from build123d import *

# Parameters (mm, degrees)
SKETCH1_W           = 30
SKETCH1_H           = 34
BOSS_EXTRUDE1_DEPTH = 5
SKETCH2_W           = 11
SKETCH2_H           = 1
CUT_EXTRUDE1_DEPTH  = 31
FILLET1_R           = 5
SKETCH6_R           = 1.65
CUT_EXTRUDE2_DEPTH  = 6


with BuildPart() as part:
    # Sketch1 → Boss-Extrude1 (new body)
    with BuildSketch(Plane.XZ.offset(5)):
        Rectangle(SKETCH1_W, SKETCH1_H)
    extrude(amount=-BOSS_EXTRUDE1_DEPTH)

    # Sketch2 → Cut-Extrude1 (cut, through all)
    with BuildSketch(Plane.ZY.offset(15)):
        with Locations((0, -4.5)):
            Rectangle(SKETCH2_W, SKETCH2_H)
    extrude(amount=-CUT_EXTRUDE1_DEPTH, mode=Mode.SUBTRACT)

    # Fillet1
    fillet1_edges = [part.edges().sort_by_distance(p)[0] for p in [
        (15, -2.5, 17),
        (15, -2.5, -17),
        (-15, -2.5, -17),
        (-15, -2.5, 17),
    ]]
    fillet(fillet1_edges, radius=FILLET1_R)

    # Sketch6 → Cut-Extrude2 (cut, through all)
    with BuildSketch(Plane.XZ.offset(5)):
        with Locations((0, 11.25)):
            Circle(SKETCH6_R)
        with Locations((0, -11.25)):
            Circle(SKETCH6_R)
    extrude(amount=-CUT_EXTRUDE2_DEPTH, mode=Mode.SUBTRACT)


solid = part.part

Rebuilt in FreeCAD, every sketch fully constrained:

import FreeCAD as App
import Part
import Sketcher

V = App.Vector


def edges_at(feature, points):
    """Names of the edges that pass closest to the given points."""
    edges = feature.Shape.Edges
    near = lambda p: min(range(len(edges)), key=lambda i: edges[i].distToShape(Part.Vertex(*p))[0])
    return sorted({f"Edge{near(p) + 1}" for p in points})

doc = App.newDocument("Part")
params = doc.addObject("Spreadsheet::Sheet", "Params")
for row, (alias, value) in enumerate([
    ("sketch1_width", "30 mm"),
    ("sketch1_height", "34 mm"),
    ("pad1_length", "5 mm"),
    ("sketch2_width", "1 mm"),
    ("sketch2_height", "11 mm"),
    ("fillet_radius", "5 mm"),
    ("sketch3_diameter", "3.3 mm"),
], start=1):
    params.set(f"A{row}", alias)
    params.set(f"B{row}", "=" + value)
    params.setAlias(f"B{row}", alias)

body = doc.addObject("PartDesign::Body", "Body")

sketch1 = body.newObject("Sketcher::SketchObject", "Sketch")
sketch1.AttachmentSupport = (doc.getObject("XZ_Plane"), [""])
sketch1.MapMode = "FlatFace"
sketch1.AttachmentOffset = App.Placement(V(0, 0, 5), App.Rotation())
sketch1.addGeometry([
    Part.LineSegment(V(-15, 17, 0), V(-15, -17, 0)),
    Part.LineSegment(V(-15, -17, 0), V(15, -17, 0)),
    Part.LineSegment(V(15, -17, 0), V(15, 17, 0)),
    Part.LineSegment(V(15, 17, 0), V(-15, 17, 0)),
], False)
sketch1.addConstraint([
    Sketcher.Constraint("Coincident", 0, 2, 1, 1),
    Sketcher.Constraint("Coincident", 1, 2, 2, 1),
    Sketcher.Constraint("Coincident", 2, 2, 3, 1),
    Sketcher.Constraint("Coincident", 3, 2, 0, 1),
    Sketcher.Constraint("Vertical", 0),
    Sketcher.Constraint("Horizontal", 1),
    Sketcher.Constraint("Vertical", 2),
    Sketcher.Constraint("Horizontal", 3),
    Sketcher.Constraint("Symmetric", 0, 2, 2, 2, -1, 1),
    Sketcher.Constraint("DistanceX", 1, 1, 1, 2, 30.0),
    Sketcher.Constraint("DistanceY", 0, 2, 0, 1, 34.0),
])
sketch1.setExpression("Constraints[9]", "Params.sketch1_width")
sketch1.setExpression("Constraints[10]", "Params.sketch1_height")
pad1 = body.newObject("PartDesign::Pad", "Pad")
pad1.Profile = sketch1
pad1.setExpression("Length", "Params.pad1_length")
pad1.Reversed = True

sketch2 = body.newObject("Sketcher::SketchObject", "Sketch001")
sketch2.AttachmentSupport = (doc.getObject("YZ_Plane"), [""])
sketch2.MapMode = "FlatFace"
sketch2.AttachmentOffset = App.Placement(V(0, 0, -15), App.Rotation())
sketch2.addGeometry([
    Part.LineSegment(V(-4, -5.5, 0), V(-5, -5.5, 0)),
    Part.LineSegment(V(-5, -5.5, 0), V(-5, 5.5, 0)),
    Part.LineSegment(V(-5, 5.5, 0), V(-4, 5.5, 0)),
    Part.LineSegment(V(-4, 5.5, 0), V(-4, -5.5, 0)),
], False)
sketch2.addConstraint([
    Sketcher.Constraint("Coincident", 0, 2, 1, 1),
    Sketcher.Constraint("Coincident", 1, 2, 2, 1),
    Sketcher.Constraint("Coincident", 2, 2, 3, 1),
    Sketcher.Constraint("Coincident", 3, 2, 0, 1),
    Sketcher.Constraint("Horizontal", 0),
    Sketcher.Constraint("Vertical", 1),
    Sketcher.Constraint("Horizontal", 2),
    Sketcher.Constraint("Vertical", 3),
    Sketcher.Constraint("DistanceX", 0, 2, 0, 1, 1.0),
    Sketcher.Constraint("DistanceY", 1, 1, 1, 2, 11.0),
    Sketcher.Constraint("DistanceX", 0, 2, -1, 1, 5.0),
    Sketcher.Constraint("DistanceY", 0, 2, -1, 1, 5.5),
])
sketch2.setExpression("Constraints[8]", "Params.sketch2_width")
sketch2.setExpression("Constraints[9]", "Params.sketch2_height")
pocket1 = body.newObject("PartDesign::Pocket", "Pocket")
pocket1.Profile = sketch2
pocket1.Type = "ThroughAll"
pocket1.Reversed = True
doc.recompute()

fillet = body.newObject("PartDesign::Fillet", "Fillet")
fillet.Base = (pocket1, edges_at(pocket1, [
    (15, -2.5, 17),
    (15, -2.5, -17),
    (-15, -2.5, -17),
    (-15, -2.5, 17),
]))
fillet.setExpression("Radius", "Params.fillet_radius")

sketch3 = body.newObject("Sketcher::SketchObject", "Sketch002")
sketch3.AttachmentSupport = (doc.getObject("XZ_Plane"), [""])
sketch3.MapMode = "FlatFace"
sketch3.AttachmentOffset = App.Placement(V(0, 0, 5), App.Rotation())
sketch3.addGeometry([
    Part.Circle(V(0, 11.2, 0), V(0, 0, 1), 1.6),
    Part.Circle(V(0, -11.2, 0), V(0, 0, 1), 1.6),
], False)
sketch3.addConstraint([
    Sketcher.Constraint("Equal", 0, 1),
    Sketcher.Constraint("Symmetric", 0, 3, 1, 3, -1, 1),
    Sketcher.Constraint("PointOnObject", 0, 3, -2),
    Sketcher.Constraint("Diameter", 0, 3.3),
    Sketcher.Constraint("DistanceY", 1, 3, 0, 3, 22.5),
])
sketch3.setExpression("Constraints[3]", "Params.sketch3_diameter")
pocket2 = body.newObject("PartDesign::Pocket", "Pocket001")
pocket2.Profile = sketch3
pocket2.Type = "ThroughAll"

doc.recompute()
